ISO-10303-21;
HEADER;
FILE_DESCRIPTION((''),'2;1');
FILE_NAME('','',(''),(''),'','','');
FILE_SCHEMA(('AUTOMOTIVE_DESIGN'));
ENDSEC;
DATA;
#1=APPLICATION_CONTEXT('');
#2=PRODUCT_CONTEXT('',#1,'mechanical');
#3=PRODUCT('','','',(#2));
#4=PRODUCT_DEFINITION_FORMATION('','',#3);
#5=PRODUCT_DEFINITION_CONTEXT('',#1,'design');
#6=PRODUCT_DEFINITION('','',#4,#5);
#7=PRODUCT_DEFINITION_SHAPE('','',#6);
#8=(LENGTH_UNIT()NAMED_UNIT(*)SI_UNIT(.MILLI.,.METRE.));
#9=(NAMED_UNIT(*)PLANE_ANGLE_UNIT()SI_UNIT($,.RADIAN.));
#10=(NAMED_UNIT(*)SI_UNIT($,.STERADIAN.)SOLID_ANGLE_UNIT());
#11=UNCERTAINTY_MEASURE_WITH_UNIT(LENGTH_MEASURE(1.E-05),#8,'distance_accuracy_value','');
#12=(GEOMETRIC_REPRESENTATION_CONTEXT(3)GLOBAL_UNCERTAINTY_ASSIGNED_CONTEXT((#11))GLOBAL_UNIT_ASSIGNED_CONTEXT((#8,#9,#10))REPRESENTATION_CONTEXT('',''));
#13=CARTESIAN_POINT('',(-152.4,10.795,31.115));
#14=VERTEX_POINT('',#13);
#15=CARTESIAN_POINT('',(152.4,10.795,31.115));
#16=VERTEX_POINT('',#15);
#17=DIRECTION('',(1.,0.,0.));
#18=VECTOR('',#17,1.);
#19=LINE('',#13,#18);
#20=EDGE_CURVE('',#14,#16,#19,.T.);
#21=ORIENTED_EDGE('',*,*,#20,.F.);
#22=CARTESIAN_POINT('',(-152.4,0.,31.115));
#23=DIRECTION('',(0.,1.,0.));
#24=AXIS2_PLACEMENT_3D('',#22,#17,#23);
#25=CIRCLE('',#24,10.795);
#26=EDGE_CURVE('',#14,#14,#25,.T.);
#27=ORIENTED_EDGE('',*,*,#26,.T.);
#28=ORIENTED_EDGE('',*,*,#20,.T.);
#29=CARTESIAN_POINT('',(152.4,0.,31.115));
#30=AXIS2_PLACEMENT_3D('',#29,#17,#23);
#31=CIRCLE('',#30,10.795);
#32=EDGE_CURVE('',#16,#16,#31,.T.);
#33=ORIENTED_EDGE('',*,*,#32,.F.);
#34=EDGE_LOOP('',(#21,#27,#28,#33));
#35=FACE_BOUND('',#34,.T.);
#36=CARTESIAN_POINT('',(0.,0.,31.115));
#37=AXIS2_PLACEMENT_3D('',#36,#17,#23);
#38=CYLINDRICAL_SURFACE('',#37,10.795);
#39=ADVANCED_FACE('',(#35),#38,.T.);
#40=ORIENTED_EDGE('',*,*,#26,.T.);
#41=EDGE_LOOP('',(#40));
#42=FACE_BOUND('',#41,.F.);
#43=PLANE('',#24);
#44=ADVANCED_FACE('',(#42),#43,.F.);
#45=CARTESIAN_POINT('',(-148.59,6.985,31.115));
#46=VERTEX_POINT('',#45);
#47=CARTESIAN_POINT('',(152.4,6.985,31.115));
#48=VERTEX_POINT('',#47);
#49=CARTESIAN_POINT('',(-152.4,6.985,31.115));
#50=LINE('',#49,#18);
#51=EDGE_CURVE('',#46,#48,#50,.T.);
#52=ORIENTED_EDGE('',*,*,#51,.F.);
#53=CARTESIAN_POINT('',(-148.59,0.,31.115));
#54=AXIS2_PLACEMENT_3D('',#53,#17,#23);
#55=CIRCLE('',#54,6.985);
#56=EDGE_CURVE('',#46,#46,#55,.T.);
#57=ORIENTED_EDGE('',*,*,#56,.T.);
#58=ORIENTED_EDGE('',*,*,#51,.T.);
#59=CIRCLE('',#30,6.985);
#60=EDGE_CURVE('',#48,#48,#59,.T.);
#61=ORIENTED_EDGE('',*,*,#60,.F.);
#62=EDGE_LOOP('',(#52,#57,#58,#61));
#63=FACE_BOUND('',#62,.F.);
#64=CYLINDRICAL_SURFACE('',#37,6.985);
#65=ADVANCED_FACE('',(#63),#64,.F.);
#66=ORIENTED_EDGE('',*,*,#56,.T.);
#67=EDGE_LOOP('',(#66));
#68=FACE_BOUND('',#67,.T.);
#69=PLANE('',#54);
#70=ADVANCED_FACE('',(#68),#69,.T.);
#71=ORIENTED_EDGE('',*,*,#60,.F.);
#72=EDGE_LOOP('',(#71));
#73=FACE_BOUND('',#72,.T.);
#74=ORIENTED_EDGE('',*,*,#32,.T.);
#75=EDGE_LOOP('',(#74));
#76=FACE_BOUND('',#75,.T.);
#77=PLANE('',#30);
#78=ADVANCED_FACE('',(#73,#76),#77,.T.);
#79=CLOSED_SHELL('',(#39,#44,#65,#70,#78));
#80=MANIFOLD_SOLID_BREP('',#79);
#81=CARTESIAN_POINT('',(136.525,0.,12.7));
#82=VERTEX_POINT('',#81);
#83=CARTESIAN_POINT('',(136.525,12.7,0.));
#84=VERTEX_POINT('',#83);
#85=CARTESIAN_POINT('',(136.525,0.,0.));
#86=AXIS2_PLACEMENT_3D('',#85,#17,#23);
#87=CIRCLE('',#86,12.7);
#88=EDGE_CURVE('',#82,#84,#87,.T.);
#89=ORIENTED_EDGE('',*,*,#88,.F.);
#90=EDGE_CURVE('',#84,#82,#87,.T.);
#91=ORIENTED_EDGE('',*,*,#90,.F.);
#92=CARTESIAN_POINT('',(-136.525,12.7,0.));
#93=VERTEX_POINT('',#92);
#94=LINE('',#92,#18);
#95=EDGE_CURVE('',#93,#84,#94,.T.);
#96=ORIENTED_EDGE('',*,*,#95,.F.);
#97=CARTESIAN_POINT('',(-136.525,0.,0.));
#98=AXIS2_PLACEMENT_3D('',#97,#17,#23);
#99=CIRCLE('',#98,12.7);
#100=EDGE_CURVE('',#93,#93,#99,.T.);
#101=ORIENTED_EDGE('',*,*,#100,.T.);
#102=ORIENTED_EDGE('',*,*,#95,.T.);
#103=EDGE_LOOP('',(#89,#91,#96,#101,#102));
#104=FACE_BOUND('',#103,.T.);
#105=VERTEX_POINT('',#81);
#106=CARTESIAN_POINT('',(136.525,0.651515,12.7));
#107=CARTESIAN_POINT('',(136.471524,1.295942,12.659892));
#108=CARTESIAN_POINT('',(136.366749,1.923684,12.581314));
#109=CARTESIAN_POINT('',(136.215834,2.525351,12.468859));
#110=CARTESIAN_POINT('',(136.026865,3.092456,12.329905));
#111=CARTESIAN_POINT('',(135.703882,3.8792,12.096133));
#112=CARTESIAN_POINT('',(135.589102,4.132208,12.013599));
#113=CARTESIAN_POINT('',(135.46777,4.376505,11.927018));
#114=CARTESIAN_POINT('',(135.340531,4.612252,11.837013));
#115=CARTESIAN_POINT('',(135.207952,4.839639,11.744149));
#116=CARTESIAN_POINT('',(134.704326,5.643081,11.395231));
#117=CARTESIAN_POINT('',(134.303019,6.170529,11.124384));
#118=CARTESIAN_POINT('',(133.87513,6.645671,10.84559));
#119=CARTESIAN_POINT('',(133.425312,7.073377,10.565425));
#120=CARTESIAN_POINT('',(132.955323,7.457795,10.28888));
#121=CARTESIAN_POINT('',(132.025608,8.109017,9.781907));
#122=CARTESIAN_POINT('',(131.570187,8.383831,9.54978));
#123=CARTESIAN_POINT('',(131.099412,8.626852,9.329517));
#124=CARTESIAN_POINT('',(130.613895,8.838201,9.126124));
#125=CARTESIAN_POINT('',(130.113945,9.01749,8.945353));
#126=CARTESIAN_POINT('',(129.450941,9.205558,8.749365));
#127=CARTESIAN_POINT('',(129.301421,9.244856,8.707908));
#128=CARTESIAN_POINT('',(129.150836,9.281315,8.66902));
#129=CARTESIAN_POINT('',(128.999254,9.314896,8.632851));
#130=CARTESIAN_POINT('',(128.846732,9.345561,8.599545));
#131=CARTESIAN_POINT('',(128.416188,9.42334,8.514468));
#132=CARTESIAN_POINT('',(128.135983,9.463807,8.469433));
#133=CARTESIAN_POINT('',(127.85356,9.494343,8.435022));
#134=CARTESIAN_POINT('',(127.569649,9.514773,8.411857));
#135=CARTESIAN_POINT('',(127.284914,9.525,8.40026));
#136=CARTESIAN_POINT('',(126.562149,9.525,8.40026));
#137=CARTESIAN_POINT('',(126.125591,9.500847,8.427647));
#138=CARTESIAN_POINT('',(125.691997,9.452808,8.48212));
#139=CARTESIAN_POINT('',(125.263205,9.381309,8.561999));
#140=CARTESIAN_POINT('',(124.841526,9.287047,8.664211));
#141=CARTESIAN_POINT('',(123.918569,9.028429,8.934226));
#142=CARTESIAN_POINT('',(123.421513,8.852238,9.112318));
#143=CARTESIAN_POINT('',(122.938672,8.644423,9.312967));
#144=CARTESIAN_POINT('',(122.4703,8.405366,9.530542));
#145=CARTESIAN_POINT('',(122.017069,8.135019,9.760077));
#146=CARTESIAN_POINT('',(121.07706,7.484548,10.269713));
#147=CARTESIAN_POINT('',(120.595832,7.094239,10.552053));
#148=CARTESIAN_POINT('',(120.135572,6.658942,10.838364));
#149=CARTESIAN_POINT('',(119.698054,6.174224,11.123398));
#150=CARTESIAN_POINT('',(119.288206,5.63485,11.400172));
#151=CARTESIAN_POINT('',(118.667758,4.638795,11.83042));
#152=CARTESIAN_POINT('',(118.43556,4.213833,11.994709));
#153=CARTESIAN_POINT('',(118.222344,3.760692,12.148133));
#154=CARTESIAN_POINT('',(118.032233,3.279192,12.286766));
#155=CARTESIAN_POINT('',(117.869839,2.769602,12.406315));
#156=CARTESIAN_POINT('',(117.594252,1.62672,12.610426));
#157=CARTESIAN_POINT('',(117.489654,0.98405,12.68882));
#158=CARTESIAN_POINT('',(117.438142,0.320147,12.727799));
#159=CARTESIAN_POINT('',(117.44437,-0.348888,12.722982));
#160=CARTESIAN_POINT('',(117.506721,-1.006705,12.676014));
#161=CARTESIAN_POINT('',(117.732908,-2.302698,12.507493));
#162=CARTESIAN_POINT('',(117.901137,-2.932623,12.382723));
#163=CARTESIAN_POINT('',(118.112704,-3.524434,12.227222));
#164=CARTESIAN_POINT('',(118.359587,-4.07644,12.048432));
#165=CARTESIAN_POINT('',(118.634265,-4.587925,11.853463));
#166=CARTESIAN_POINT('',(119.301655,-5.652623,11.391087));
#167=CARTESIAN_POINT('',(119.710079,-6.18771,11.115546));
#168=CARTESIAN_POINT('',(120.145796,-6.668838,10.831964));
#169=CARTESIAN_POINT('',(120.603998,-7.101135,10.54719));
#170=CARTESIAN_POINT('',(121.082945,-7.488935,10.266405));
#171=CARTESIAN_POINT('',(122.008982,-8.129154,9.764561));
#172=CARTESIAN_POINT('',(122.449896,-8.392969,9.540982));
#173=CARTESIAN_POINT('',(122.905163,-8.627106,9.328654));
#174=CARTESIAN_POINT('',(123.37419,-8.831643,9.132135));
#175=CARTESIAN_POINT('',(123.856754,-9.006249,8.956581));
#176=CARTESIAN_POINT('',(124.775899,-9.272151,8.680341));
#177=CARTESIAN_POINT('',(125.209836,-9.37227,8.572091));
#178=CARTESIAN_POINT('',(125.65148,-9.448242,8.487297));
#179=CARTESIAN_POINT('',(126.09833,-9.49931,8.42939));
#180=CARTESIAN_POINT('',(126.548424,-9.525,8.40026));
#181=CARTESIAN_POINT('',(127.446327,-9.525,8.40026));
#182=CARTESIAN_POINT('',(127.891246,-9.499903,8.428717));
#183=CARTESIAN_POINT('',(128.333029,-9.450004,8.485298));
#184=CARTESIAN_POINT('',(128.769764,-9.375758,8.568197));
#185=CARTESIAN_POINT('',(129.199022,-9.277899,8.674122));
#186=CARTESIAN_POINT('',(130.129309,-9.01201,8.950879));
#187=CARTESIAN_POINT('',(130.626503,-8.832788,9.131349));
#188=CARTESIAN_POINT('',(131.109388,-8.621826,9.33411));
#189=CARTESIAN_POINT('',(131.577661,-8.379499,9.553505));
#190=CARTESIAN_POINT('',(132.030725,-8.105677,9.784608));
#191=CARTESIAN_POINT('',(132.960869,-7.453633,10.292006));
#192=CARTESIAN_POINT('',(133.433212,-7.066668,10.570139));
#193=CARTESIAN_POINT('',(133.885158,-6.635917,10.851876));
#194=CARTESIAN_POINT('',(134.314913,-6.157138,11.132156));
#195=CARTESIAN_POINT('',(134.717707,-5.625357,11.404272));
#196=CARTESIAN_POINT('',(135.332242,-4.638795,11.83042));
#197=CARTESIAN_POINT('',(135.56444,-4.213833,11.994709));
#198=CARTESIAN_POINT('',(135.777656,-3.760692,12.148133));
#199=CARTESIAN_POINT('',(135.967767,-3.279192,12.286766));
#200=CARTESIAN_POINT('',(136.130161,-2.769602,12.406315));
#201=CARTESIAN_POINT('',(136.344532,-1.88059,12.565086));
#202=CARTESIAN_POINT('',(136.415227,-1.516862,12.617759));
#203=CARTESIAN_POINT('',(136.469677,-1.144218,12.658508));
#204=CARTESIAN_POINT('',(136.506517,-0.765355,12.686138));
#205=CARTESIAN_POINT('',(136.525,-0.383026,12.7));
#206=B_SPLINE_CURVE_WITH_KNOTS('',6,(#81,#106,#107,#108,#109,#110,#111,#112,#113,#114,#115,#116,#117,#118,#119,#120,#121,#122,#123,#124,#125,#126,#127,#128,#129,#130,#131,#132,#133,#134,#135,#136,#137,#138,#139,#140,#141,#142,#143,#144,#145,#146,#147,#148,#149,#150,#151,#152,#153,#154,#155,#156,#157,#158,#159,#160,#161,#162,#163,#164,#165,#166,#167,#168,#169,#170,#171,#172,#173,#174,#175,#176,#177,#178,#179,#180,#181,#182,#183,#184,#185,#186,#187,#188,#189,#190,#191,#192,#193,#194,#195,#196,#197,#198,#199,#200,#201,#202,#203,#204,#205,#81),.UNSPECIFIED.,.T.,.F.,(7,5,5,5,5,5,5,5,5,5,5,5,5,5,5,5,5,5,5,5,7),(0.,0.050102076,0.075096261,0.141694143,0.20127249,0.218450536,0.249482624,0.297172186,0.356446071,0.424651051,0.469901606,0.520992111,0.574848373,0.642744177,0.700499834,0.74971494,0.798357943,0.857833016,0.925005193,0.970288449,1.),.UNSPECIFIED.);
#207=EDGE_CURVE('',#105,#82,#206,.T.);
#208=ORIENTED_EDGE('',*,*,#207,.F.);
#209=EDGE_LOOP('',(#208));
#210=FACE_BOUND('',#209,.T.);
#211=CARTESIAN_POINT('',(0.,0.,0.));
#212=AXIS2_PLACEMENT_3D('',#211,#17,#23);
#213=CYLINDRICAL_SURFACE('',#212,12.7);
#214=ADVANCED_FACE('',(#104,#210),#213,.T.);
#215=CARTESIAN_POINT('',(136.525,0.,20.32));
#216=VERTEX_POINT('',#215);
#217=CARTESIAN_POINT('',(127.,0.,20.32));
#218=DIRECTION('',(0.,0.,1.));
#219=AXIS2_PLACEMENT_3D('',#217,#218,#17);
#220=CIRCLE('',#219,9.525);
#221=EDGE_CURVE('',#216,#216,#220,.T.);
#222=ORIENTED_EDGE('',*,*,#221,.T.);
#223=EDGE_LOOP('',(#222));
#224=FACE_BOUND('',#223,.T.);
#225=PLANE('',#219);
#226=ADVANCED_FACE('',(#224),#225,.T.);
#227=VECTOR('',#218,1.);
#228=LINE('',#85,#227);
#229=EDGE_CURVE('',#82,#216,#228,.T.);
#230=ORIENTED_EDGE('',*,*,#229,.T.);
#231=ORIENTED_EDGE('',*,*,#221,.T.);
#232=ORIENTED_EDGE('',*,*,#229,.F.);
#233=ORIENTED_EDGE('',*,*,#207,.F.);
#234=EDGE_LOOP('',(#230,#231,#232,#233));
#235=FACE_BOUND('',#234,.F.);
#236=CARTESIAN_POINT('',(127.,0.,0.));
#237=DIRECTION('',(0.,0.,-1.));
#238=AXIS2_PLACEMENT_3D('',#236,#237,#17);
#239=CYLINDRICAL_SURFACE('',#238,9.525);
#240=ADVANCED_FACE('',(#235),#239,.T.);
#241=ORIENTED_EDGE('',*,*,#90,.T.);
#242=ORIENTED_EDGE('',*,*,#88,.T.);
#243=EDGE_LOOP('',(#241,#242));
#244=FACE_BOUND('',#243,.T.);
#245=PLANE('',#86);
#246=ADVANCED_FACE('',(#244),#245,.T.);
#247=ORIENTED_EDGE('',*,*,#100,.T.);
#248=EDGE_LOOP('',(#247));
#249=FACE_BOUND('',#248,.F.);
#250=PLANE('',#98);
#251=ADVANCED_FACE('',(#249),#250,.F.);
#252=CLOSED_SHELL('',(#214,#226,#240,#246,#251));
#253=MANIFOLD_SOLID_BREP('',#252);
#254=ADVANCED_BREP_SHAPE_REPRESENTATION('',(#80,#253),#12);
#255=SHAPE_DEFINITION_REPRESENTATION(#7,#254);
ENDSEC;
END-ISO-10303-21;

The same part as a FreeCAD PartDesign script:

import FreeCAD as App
import Part
import Sketcher
from FreeCAD import Vector
Q = App.Units.Quantity


def faces_at(feature, points):
    """Names of the faces that lie closest to the given points."""
    faces = feature.Shape.Faces
    near = lambda p: min(range(len(faces)), key=lambda i: faces[i].distToShape(Part.Vertex(*p))[0])
    return sorted({f"Face{near(p) + 1}" for p in points})

doc = App.newDocument("Part")
body = doc.addObject("PartDesign::Body", "Body")

# Sketch on YZ plane
sketch1 = body.newObject("Sketcher::SketchObject", "Sketch")
sketch1.AttachmentSupport = (doc.getObject("YZ_Plane"), [""])
sketch1.MapMode = "FlatFace"
sketch1.addGeometry(Part.Circle(Vector(0, 0, 0), Vector(0, 0, 1), 12.7), False)
sketch1.addConstraint([
    Sketcher.Constraint("Coincident", 0, 3, -1, 1),
    Sketcher.Constraint("Diameter", 0, Q("1 in")),
])
pad1 = body.newObject("PartDesign::Pad", "Pad")
pad1.Profile = sketch1
pad1.Length = Q("10.75 in")
pad1.Midplane = True

# Sketch on XY plane
sketch2 = body.newObject("Sketcher::SketchObject", "Sketch001")
sketch2.AttachmentSupport = (doc.getObject("XY_Plane"), [""])
sketch2.MapMode = "FlatFace"
sketch2.addGeometry(Part.Circle(Vector(127, 0, 0), Vector(0, 0, 1), 9.525), False)
sketch2.addConstraint([
    Sketcher.Constraint("PointOnObject", 0, 3, -1),
    Sketcher.Constraint("Diameter", 0, Q("0.75 in")),
    Sketcher.Constraint("DistanceX", -1, 1, 0, 3, Q("5 in")),
])
pad2 = body.newObject("PartDesign::Pad", "Pad001")
pad2.Profile = sketch2
pad2.Length = Q("0.8 in")
body2 = doc.addObject("PartDesign::Body", "Body001")

# Sketch on YZ plane
sketch3 = body2.newObject("Sketcher::SketchObject", "Sketch002")
sketch3.AttachmentSupport = (doc.getObject("YZ_Plane001"), [""])
sketch3.MapMode = "FlatFace"
sketch3.addGeometry(Part.Circle(Vector(0, 31.115, 0), Vector(0, 0, 1), 10.795), False)
sketch3.addConstraint([
    Sketcher.Constraint("PointOnObject", 0, 3, -2),
    Sketcher.Constraint("Diameter", 0, Q("0.85 in")),
    Sketcher.Constraint("DistanceY", -1, 1, 0, 3, Q("1.225 in")),
])
pad3 = body2.newObject("PartDesign::Pad", "Pad002")
pad3.Profile = sketch3
pad3.Length = Q("12 in")
pad3.Midplane = True
doc.recompute()

thickness = body2.newObject("PartDesign::Thickness", "Thickness")
thickness.Base = (pad3, faces_at(pad3, [(152.4, 0, 31.115)]))
thickness.Value = Q("0.15 in")
thickness.Reversed = True
thickness.Join = "Arc"

doc.recompute()
